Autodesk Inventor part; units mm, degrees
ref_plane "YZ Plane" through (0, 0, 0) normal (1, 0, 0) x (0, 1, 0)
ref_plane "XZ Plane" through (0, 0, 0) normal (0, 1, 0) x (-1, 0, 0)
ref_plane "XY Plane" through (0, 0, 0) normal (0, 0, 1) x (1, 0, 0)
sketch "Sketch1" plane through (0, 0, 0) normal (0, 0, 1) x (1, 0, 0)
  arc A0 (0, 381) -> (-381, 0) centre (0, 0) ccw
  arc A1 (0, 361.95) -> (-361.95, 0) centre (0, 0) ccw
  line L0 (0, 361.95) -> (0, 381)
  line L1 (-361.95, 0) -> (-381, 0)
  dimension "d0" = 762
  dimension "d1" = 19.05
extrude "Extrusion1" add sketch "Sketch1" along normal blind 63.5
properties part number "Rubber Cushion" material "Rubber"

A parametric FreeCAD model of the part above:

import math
import FreeCAD as App
import Part
import Sketcher
Q = App.Units.Quantity

doc = App.newDocument("Part")
body = doc.addObject("PartDesign::Body", "Body")

# Sketch on XY plane
sketch1 = body.newObject("Sketcher::SketchObject", "Sketch")
sketch1.AttachmentSupport = (doc.getObject("XY_Plane"), [""])
sketch1.MapMode = "FlatFace"
sketch1.addGeometry(Part.LineSegment(App.Vector(0, 361.95, 0), App.Vector(0, 381, 0)), False)
sketch1.addGeometry(Part.ArcOfCircle(Part.Circle(App.Vector(0, 0, 0), App.Vector(0, 0, 1), 381), math.radians(90), math.radians(180)), False)
sketch1.addGeometry(Part.LineSegment(App.Vector(-381, 0, 0), App.Vector(-361.95, 0, 0)), False)
sketch1.addGeometry(Part.ArcOfCircle(Part.Circle(App.Vector(0, 0, 0), App.Vector(0, 0, 1), 361.95), math.radians(90), math.radians(180)), False)
sketch1.addConstraint(Sketcher.Constraint("Coincident", 0, 2, 1, 1))
sketch1.addConstraint(Sketcher.Constraint("Coincident", 1, 2, 2, 1))
sketch1.addConstraint(Sketcher.Constraint("Coincident", 2, 2, 3, 2))
sketch1.addConstraint(Sketcher.Constraint("Coincident", 3, 1, 0, 1))
sketch1.addConstraint(Sketcher.Constraint("Vertical", 0))
sketch1.addConstraint(Sketcher.Constraint("Horizontal", 2))
sketch1.addConstraint(Sketcher.Constraint("Coincident", 1, 3, -1, 1))
sketch1.addConstraint(Sketcher.Constraint("Coincident", 3, 3, -1, 1))
sketch1.addConstraint(Sketcher.Constraint("PointOnObject", 0, 2, -2))
sketch1.addConstraint(Sketcher.Constraint("PointOnObject", 2, 2, -1))
sketch1.addConstraint(Sketcher.Constraint("Radius", 1, Q("15 in")))
sketch1.addConstraint(Sketcher.Constraint("DistanceX", 2, 1, 2, 2, Q("0.75 in")))
pad1 = body.newObject("PartDesign::Pad", "Pad")
pad1.Profile = sketch1
pad1.Length = Q("2.5 in")

doc.recompute()
